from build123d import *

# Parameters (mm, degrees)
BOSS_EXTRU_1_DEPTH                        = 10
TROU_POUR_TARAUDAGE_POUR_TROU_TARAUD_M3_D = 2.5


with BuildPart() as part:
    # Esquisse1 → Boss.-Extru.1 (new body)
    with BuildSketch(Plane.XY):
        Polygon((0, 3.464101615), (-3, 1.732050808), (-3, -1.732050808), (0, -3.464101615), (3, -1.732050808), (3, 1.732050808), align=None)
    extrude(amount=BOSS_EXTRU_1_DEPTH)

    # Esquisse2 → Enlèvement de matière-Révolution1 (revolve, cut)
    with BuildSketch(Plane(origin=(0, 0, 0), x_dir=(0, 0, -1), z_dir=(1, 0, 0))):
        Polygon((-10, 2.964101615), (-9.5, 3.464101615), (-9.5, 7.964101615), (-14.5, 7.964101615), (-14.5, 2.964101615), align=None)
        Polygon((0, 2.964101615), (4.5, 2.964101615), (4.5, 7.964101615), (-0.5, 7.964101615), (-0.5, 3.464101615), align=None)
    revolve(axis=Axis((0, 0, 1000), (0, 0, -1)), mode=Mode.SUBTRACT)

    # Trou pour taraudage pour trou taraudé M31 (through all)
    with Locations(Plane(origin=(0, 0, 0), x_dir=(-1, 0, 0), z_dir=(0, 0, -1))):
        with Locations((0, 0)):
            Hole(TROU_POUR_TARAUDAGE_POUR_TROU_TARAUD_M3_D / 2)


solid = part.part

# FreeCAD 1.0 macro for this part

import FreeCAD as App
import Part
import Sketcher
from FreeCAD import Vector
Q = App.Units.Quantity


def add_polygon(sketch, points):
    """Adds a closed chain of lines whose ends are joined by coincident constraints."""
    first, n = sketch.GeometryCount, len(points)
    for a, b in zip(points, points[1:] + points[:1]):
        sketch.addGeometry(Part.LineSegment(App.Vector(*a, 0), App.Vector(*b, 0)), False)
    for i in range(n):
        sketch.addConstraint(Sketcher.Constraint("Coincident", first + i, 2, first + (i + 1) % n, 1))

doc = App.newDocument("Part")
body = doc.addObject("PartDesign::Body", "Body")

# Sketch on XY plane
sketch1 = doc.addObject("Sketcher::SketchObject", "Sketch")
body.addObject(sketch1)
sketch1.AttachmentSupport = (doc.XY_Plane, [""])
sketch1.MapMode = "FlatFace"
add_polygon(sketch1, [(0, 3.5), (-3, 1.7), (-3, -1.7), (0, -3.5), (3, -1.7), (3, 1.7)])  # lines 0-5
sketch1.addConstraint([
    Sketcher.Constraint("Vertical", 1),
    Sketcher.Constraint("Vertical", 4),
    Sketcher.Constraint("Symmetric", 0, 2, 3, 2, -1, 1),
    Sketcher.Constraint("Symmetric", 2, 2, 5, 2, -1, 1),
    Sketcher.Constraint("PointOnObject", 2, 2, -2),
    Sketcher.Constraint("Parallel", 2, 5),
    Sketcher.Constraint("Horizontal", 1, 2, 3, 2),
    Sketcher.Constraint("Angle", 0, Q("-150 deg")),
    Sketcher.Constraint("DistanceX", 0, 2, -1, 1, 3.0),
    Sketcher.Constraint("DistanceY", 1, 2, 1, 1, 3.464102),
])
pad1 = doc.addObject("PartDesign::Pad", "Pad")
body.addObject(pad1)
pad1.Profile = sketch1
pad1.Length = 10

# Sketch on YZ plane
sketch2 = doc.addObject("Sketcher::SketchObject", "Sketch001")
body.addObject(sketch2)
sketch2.AttachmentSupport = (doc.YZ_Plane, [""])
sketch2.MapMode = "FlatFace"
add_polygon(sketch2, [(3, 10), (3.5, 9.5), (8, 9.5), (8, 14.5), (3, 14.5)])  # lines 0-4
add_polygon(sketch2, [(3, 0), (3, -4.5), (8, -4.5), (8, 0.5), (3.5, 0.5)])  # lines 5-9
sketch2.addConstraint([
    Sketcher.Constraint("Horizontal", 1),
    Sketcher.Constraint("Vertical", 2),
    Sketcher.Constraint("Horizontal", 3),
    Sketcher.Constraint("Vertical", 4),
    Sketcher.Constraint("Vertical", 5),
    Sketcher.Constraint("Horizontal", 6),
    Sketcher.Constraint("Vertical", 7),
    Sketcher.Constraint("Horizontal", 8),
    Sketcher.Constraint("PointOnObject", 9, 2, -1),
    Sketcher.Constraint("Perpendicular", 0, 9),
    Sketcher.Constraint("Vertical", 4, 2, 5, 2),
    Sketcher.Constraint("Vertical", 2, 2, 6, 2),
    Sketcher.Constraint("Vertical", 0, 2, 8, 2),
    Sketcher.Constraint("Equal", 6, 2),
    Sketcher.Constraint("Equal", 8, 4),
    Sketcher.Constraint("Equal", 4, 5),
    Sketcher.Constraint("DistanceX", 3, 2, 3, 1, 5.0),
    Sketcher.Constraint("DistanceX", 1, 1, 1, 2, 4.5),
    Sketcher.Constraint("DistanceY", -1, 1, 4, 2, 10.0),
    Sketcher.Constraint("DistanceX", -1, 1, 0, 2, 3.464102),
])
groove = doc.addObject("PartDesign::Groove", "Groove")
body.addObject(groove)
groove.Profile = sketch2
groove.ReferenceAxis = (sketch2, ["V_Axis"])
groove.Angle = 360

# Sketch on XY plane
sketch3 = doc.addObject("Sketcher::SketchObject", "Sketch002")
body.addObject(sketch3)
sketch3.AttachmentSupport = (doc.XY_Plane, [""])
sketch3.MapMode = "FlatFace"
sketch3.addGeometry(Part.Circle(Vector(0, 0, 0), Vector(0, 0, 1), 1.2), False)
sketch3.addConstraint([
    Sketcher.Constraint("Coincident", 0, 3, -1, 1),
    Sketcher.Constraint("Diameter", 0, 2.5),
])
doc.recompute()
hole = doc.addObject("PartDesign::Hole", "Hole")
body.addObject(hole)
hole.Profile = sketch3
hole.ThreadType = "None"
hole.Diameter = 2.5
hole.DepthType = "ThroughAll"
hole.Reversed = True

doc.recompute()
